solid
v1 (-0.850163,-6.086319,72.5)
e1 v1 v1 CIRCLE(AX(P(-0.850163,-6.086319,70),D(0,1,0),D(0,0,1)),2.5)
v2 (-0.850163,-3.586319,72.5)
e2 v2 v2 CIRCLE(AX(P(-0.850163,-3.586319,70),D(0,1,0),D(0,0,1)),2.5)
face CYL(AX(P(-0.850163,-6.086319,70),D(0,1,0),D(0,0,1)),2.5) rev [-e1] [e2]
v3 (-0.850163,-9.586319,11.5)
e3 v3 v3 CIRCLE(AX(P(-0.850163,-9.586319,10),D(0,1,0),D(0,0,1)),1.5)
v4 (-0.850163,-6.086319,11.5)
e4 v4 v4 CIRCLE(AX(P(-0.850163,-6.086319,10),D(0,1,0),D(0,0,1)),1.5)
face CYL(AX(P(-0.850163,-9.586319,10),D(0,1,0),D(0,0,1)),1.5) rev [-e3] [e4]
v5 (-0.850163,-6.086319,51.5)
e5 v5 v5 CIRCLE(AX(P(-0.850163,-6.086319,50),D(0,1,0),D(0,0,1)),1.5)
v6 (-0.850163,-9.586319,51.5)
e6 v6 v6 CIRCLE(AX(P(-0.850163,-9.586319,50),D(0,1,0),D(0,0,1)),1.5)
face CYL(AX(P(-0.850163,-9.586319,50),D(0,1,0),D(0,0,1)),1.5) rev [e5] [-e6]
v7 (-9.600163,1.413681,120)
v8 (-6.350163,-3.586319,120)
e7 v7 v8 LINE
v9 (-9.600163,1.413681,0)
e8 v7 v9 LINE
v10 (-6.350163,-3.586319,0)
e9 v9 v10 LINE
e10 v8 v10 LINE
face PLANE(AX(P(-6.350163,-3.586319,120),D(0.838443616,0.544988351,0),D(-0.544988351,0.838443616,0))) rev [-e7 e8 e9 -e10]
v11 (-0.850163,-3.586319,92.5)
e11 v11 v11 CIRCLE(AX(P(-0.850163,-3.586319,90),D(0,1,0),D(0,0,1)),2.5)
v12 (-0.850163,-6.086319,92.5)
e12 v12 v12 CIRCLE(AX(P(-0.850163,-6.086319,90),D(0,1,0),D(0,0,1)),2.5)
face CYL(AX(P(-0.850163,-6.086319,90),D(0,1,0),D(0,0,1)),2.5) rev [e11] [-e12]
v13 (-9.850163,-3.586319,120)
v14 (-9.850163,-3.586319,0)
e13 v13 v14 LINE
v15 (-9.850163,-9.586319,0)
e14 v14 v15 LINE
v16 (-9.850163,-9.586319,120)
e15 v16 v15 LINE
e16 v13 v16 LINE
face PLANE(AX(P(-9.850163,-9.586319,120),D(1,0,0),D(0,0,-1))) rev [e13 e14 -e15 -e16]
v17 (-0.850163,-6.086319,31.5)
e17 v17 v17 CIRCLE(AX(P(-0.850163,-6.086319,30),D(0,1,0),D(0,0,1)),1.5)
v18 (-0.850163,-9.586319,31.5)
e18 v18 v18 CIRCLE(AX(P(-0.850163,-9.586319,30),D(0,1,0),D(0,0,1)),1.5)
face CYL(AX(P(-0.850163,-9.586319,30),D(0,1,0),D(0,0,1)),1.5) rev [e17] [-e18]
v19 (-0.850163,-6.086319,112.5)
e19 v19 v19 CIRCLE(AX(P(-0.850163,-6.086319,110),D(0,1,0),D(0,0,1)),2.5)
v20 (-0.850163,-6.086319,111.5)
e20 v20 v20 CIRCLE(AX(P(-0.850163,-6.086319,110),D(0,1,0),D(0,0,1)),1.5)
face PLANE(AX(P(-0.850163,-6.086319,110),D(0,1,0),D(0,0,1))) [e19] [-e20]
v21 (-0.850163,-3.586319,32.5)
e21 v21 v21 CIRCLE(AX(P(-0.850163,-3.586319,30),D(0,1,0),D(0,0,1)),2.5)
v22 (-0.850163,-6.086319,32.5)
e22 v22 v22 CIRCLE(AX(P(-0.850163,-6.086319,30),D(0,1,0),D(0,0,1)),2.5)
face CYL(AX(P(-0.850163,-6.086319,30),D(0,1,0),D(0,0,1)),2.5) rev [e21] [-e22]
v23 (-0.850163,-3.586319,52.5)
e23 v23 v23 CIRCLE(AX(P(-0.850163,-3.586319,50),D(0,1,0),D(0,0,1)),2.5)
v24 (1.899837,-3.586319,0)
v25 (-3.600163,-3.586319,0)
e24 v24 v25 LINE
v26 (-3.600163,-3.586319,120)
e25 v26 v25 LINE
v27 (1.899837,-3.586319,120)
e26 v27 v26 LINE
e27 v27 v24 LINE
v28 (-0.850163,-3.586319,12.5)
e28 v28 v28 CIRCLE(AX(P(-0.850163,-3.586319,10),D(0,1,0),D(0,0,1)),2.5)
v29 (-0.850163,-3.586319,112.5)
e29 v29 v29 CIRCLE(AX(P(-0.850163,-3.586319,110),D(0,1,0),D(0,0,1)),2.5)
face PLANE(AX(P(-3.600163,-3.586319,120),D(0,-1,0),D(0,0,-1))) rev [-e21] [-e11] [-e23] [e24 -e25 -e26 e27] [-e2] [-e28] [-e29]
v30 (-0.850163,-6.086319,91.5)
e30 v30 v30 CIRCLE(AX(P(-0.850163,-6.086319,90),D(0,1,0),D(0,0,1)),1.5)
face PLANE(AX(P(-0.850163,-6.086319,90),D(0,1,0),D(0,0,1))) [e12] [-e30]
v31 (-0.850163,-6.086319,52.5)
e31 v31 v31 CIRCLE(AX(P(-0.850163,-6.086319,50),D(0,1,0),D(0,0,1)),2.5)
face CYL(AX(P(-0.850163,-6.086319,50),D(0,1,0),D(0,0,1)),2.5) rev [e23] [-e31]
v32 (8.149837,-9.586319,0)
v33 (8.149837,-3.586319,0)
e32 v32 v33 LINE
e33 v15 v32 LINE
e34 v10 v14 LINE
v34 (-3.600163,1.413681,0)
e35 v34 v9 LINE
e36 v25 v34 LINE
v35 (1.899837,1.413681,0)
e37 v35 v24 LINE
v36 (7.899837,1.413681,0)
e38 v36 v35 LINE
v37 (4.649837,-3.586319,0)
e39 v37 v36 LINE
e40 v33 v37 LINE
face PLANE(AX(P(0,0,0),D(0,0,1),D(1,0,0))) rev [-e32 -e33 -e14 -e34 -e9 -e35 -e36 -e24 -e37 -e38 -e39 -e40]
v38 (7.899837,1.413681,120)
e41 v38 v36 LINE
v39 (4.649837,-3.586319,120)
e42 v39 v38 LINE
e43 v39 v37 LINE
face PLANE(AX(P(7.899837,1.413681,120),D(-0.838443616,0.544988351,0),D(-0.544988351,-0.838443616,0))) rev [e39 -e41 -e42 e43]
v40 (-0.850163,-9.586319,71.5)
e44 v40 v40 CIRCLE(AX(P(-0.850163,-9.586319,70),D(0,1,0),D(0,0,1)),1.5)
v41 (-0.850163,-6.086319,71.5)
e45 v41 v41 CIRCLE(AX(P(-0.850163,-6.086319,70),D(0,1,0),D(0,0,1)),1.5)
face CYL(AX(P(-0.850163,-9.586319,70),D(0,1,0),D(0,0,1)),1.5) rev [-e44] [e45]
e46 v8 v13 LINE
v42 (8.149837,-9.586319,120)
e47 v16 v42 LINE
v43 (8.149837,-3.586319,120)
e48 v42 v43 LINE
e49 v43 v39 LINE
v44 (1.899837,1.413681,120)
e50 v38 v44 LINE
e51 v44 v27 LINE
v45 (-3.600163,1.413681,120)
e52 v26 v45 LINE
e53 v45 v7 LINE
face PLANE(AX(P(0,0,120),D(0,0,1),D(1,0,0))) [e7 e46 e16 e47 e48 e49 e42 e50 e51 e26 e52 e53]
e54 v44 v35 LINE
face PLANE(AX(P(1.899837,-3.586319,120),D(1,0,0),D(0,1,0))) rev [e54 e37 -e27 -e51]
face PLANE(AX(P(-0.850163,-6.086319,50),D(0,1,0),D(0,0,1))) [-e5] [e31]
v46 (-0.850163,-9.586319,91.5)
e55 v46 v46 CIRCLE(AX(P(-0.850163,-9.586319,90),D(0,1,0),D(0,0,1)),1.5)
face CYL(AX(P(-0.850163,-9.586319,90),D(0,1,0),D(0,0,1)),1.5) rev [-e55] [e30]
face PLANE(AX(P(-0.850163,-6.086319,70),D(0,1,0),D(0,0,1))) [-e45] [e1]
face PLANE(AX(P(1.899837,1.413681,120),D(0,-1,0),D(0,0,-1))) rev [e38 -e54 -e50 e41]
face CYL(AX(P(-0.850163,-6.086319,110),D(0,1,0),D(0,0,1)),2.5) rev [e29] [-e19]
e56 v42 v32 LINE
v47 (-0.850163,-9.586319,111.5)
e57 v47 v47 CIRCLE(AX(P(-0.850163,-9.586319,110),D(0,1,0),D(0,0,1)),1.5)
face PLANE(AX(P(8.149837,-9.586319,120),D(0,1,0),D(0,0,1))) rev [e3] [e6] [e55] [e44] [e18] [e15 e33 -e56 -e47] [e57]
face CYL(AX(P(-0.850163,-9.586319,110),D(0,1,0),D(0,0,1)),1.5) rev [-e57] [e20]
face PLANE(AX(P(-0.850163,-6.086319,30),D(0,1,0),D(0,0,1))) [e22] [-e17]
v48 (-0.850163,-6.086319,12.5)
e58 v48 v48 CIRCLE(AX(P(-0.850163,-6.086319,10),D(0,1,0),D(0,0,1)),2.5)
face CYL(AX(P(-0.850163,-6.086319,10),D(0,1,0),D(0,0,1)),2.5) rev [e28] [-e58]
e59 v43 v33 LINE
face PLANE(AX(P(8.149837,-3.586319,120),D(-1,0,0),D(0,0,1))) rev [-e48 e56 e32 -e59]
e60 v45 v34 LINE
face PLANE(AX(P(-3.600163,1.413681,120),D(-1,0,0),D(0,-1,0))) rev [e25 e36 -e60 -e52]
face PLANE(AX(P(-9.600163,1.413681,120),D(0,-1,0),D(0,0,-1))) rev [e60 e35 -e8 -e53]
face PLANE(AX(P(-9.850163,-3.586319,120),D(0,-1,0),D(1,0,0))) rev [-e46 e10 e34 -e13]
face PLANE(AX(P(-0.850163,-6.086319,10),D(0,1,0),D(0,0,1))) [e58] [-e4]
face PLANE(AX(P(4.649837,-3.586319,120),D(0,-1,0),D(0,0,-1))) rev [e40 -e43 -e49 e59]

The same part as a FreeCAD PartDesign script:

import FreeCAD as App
import Part
import Sketcher


def add_polygon(sketch, points):
    """Adds a closed chain of lines whose ends are joined by coincident constraints."""
    first, n = sketch.GeometryCount, len(points)
    for a, b in zip(points, points[1:] + points[:1]):
        sketch.addGeometry(Part.LineSegment(App.Vector(*a, 0), App.Vector(*b, 0)), False)
    for i in range(n):
        sketch.addConstraint(Sketcher.Constraint("Coincident", first + i, 2, first + (i + 1) % n, 1))

doc = App.newDocument("Part")
body = doc.addObject("PartDesign::Body", "Body")

sketch1 = doc.addObject("Sketcher::SketchObject", "Sketch")
body.addObject(sketch1)
sketch1.AttachmentSupport = (doc.XY_Plane, [""])
sketch1.MapMode = "FlatFace"
add_polygon(sketch1, [(-3.6, 1.4), (-9.6, 1.4), (-6.4, -3.6), (-9.9, -3.6), (-9.9, -9.6), (8.1, -9.6), (8.1, -3.6), (4.6, -3.6), (7.9, 1.4), (1.9, 1.4), (1.9, -3.6), (-3.6, -3.6)])
sketch1.addConstraint([
    Sketcher.Constraint("Horizontal", 0),
    Sketcher.Constraint("Horizontal", 2),
    Sketcher.Constraint("Vertical", 3),
    Sketcher.Constraint("Horizontal", 4),
    Sketcher.Constraint("Vertical", 5),
    Sketcher.Constraint("Horizontal", 6),
    Sketcher.Constraint("Horizontal", 8),
    Sketcher.Constraint("Vertical", 9),
    Sketcher.Constraint("Horizontal", 10),
    Sketcher.Constraint("Vertical", 11),
    Sketcher.Constraint("Horizontal", 2, 2, 5, 2),
    Sketcher.Constraint("Horizontal", 0, 2, 7, 2),
    Sketcher.Constraint("Horizontal", 6, 2, 9, 2),
    Sketcher.Constraint("Equal", 2, 6),
    Sketcher.Constraint("Equal", 0, 8),
    Sketcher.Constraint("Equal", 8, 3),
    Sketcher.Constraint("Equal", 1, 7),
    Sketcher.Constraint("DistanceX", 0, 2, 0, 1, 6.0),
    Sketcher.Constraint("DistanceX", 4, 1, 4, 2, 18.0),
    Sketcher.Constraint("DistanceY", 9, 2, 9, 1, 5.0),
    Sketcher.Constraint("DistanceX", 2, 2, 2, 1, 3.5),
    Sketcher.Constraint("DistanceX", 10, 2, 10, 1, 5.5),
    Sketcher.Constraint("DistanceY", -1, 1, 0, 2, 1.413681),
    Sketcher.Constraint("DistanceX", 0, 2, -1, 1, 9.600163),
])
pad1 = doc.addObject("PartDesign::Pad", "Pad")
body.addObject(pad1)
pad1.Profile = sketch1
pad1.Length = 120

sketch2 = doc.addObject("Sketcher::SketchObject", "Sketch001")
body.addObject(sketch2)
sketch2.AttachmentSupport = (doc.XZ_Plane, [""])
sketch2.MapMode = "FlatFace"
sketch2.AttachmentOffset = App.Placement(App.Vector(0, 0, 3.586319), App.Rotation())
sketch2.addGeometry([
    Part.Circle(App.Vector(-0.9, 10, 0), App.Vector(0, 0, 1), 2.5),
    Part.Circle(App.Vector(-0.9, 30, 0), App.Vector(0, 0, 1), 2.5),
    Part.Circle(App.Vector(-0.9, 50, 0), App.Vector(0, 0, 1), 2.5),
    Part.Circle(App.Vector(-0.9, 70, 0), App.Vector(0, 0, 1), 2.5),
    Part.Circle(App.Vector(-0.9, 90, 0), App.Vector(0, 0, 1), 2.5),
    Part.Circle(App.Vector(-0.9, 110, 0), App.Vector(0, 0, 1), 2.5),
], False)
sketch2.addConstraint([
    Sketcher.Constraint("Equal", 0, 1),
    Sketcher.Constraint("Equal", 1, 2),
    Sketcher.Constraint("Equal", 2, 3),
    Sketcher.Constraint("Equal", 3, 4),
    Sketcher.Constraint("Equal", 4, 5),
    Sketcher.Constraint("Vertical", 0, 3, 1, 3),
    Sketcher.Constraint("Vertical", 1, 3, 2, 3),
    Sketcher.Constraint("Vertical", 2, 3, 3, 3),
    Sketcher.Constraint("Vertical", 3, 3, 4, 3),
    Sketcher.Constraint("Vertical", 4, 3, 5, 3),
    Sketcher.Constraint("Diameter", 0, 5.0),
    Sketcher.Constraint("DistanceY", -1, 1, 0, 3, 10.0),
    Sketcher.Constraint("DistanceY", -1, 1, 1, 3, 30.0),
    Sketcher.Constraint("DistanceY", -1, 1, 2, 3, 50.0),
    Sketcher.Constraint("DistanceY", -1, 1, 3, 3, 70.0),
    Sketcher.Constraint("DistanceY", -1, 1, 4, 3, 90.0),
    Sketcher.Constraint("DistanceY", -1, 1, 5, 3, 110.0),
    Sketcher.Constraint("DistanceX", 0, 3, -1, 1, 0.850163),
])
pocket1 = doc.addObject("PartDesign::Pocket", "Pocket")
body.addObject(pocket1)
pocket1.Profile = sketch2
pocket1.Length = 2.5
pocket1.Reversed = True

sketch3 = doc.addObject("Sketcher::SketchObject", "Sketch002")
body.addObject(sketch3)
sketch3.AttachmentSupport = (doc.XZ_Plane, [""])
sketch3.MapMode = "FlatFace"
sketch3.AttachmentOffset = App.Placement(App.Vector(0, 0, 6.086319), App.Rotation())
sketch3.addGeometry([
    Part.Circle(App.Vector(-0.9, 10, 0), App.Vector(0, 0, 1), 1.5),
    Part.Circle(App.Vector(-0.9, 30, 0), App.Vector(0, 0, 1), 1.5),
    Part.Circle(App.Vector(-0.9, 50, 0), App.Vector(0, 0, 1), 1.5),
    Part.Circle(App.Vector(-0.9, 70, 0), App.Vector(0, 0, 1), 1.5),
    Part.Circle(App.Vector(-0.9, 90, 0), App.Vector(0, 0, 1), 1.5),
    Part.Circle(App.Vector(-0.9, 110, 0), App.Vector(0, 0, 1), 1.5),
], False)
sketch3.addConstraint([
    Sketcher.Constraint("Equal", 0, 1),
    Sketcher.Constraint("Equal", 1, 2),
    Sketcher.Constraint("Equal", 2, 3),
    Sketcher.Constraint("Equal", 3, 4),
    Sketcher.Constraint("Equal", 4, 5),
    Sketcher.Constraint("Vertical", 0, 3, 1, 3),
    Sketcher.Constraint("Vertical", 1, 3, 2, 3),
    Sketcher.Constraint("Vertical", 2, 3, 3, 3),
    Sketcher.Constraint("Vertical", 3, 3, 4, 3),
    Sketcher.Constraint("Vertical", 4, 3, 5, 3),
    Sketcher.Constraint("Diameter", 0, 3.0),
    Sketcher.Constraint("DistanceY", -1, 1, 0, 3, 10.0),
    Sketcher.Constraint("DistanceY", -1, 1, 1, 3, 30.0),
    Sketcher.Constraint("DistanceY", -1, 1, 2, 3, 50.0),
    Sketcher.Constraint("DistanceY", -1, 1, 3, 3, 70.0),
    Sketcher.Constraint("DistanceY", -1, 1, 4, 3, 90.0),
    Sketcher.Constraint("DistanceY", -1, 1, 5, 3, 110.0),
    Sketcher.Constraint("DistanceX", 0, 3, -1, 1, 0.850163),
])
pocket2 = doc.addObject("PartDesign::Pocket", "Pocket001")
body.addObject(pocket2)
pocket2.Profile = sketch3
pocket2.Type = "ThroughAll"
pocket2.Reversed = True

doc.recompute()
